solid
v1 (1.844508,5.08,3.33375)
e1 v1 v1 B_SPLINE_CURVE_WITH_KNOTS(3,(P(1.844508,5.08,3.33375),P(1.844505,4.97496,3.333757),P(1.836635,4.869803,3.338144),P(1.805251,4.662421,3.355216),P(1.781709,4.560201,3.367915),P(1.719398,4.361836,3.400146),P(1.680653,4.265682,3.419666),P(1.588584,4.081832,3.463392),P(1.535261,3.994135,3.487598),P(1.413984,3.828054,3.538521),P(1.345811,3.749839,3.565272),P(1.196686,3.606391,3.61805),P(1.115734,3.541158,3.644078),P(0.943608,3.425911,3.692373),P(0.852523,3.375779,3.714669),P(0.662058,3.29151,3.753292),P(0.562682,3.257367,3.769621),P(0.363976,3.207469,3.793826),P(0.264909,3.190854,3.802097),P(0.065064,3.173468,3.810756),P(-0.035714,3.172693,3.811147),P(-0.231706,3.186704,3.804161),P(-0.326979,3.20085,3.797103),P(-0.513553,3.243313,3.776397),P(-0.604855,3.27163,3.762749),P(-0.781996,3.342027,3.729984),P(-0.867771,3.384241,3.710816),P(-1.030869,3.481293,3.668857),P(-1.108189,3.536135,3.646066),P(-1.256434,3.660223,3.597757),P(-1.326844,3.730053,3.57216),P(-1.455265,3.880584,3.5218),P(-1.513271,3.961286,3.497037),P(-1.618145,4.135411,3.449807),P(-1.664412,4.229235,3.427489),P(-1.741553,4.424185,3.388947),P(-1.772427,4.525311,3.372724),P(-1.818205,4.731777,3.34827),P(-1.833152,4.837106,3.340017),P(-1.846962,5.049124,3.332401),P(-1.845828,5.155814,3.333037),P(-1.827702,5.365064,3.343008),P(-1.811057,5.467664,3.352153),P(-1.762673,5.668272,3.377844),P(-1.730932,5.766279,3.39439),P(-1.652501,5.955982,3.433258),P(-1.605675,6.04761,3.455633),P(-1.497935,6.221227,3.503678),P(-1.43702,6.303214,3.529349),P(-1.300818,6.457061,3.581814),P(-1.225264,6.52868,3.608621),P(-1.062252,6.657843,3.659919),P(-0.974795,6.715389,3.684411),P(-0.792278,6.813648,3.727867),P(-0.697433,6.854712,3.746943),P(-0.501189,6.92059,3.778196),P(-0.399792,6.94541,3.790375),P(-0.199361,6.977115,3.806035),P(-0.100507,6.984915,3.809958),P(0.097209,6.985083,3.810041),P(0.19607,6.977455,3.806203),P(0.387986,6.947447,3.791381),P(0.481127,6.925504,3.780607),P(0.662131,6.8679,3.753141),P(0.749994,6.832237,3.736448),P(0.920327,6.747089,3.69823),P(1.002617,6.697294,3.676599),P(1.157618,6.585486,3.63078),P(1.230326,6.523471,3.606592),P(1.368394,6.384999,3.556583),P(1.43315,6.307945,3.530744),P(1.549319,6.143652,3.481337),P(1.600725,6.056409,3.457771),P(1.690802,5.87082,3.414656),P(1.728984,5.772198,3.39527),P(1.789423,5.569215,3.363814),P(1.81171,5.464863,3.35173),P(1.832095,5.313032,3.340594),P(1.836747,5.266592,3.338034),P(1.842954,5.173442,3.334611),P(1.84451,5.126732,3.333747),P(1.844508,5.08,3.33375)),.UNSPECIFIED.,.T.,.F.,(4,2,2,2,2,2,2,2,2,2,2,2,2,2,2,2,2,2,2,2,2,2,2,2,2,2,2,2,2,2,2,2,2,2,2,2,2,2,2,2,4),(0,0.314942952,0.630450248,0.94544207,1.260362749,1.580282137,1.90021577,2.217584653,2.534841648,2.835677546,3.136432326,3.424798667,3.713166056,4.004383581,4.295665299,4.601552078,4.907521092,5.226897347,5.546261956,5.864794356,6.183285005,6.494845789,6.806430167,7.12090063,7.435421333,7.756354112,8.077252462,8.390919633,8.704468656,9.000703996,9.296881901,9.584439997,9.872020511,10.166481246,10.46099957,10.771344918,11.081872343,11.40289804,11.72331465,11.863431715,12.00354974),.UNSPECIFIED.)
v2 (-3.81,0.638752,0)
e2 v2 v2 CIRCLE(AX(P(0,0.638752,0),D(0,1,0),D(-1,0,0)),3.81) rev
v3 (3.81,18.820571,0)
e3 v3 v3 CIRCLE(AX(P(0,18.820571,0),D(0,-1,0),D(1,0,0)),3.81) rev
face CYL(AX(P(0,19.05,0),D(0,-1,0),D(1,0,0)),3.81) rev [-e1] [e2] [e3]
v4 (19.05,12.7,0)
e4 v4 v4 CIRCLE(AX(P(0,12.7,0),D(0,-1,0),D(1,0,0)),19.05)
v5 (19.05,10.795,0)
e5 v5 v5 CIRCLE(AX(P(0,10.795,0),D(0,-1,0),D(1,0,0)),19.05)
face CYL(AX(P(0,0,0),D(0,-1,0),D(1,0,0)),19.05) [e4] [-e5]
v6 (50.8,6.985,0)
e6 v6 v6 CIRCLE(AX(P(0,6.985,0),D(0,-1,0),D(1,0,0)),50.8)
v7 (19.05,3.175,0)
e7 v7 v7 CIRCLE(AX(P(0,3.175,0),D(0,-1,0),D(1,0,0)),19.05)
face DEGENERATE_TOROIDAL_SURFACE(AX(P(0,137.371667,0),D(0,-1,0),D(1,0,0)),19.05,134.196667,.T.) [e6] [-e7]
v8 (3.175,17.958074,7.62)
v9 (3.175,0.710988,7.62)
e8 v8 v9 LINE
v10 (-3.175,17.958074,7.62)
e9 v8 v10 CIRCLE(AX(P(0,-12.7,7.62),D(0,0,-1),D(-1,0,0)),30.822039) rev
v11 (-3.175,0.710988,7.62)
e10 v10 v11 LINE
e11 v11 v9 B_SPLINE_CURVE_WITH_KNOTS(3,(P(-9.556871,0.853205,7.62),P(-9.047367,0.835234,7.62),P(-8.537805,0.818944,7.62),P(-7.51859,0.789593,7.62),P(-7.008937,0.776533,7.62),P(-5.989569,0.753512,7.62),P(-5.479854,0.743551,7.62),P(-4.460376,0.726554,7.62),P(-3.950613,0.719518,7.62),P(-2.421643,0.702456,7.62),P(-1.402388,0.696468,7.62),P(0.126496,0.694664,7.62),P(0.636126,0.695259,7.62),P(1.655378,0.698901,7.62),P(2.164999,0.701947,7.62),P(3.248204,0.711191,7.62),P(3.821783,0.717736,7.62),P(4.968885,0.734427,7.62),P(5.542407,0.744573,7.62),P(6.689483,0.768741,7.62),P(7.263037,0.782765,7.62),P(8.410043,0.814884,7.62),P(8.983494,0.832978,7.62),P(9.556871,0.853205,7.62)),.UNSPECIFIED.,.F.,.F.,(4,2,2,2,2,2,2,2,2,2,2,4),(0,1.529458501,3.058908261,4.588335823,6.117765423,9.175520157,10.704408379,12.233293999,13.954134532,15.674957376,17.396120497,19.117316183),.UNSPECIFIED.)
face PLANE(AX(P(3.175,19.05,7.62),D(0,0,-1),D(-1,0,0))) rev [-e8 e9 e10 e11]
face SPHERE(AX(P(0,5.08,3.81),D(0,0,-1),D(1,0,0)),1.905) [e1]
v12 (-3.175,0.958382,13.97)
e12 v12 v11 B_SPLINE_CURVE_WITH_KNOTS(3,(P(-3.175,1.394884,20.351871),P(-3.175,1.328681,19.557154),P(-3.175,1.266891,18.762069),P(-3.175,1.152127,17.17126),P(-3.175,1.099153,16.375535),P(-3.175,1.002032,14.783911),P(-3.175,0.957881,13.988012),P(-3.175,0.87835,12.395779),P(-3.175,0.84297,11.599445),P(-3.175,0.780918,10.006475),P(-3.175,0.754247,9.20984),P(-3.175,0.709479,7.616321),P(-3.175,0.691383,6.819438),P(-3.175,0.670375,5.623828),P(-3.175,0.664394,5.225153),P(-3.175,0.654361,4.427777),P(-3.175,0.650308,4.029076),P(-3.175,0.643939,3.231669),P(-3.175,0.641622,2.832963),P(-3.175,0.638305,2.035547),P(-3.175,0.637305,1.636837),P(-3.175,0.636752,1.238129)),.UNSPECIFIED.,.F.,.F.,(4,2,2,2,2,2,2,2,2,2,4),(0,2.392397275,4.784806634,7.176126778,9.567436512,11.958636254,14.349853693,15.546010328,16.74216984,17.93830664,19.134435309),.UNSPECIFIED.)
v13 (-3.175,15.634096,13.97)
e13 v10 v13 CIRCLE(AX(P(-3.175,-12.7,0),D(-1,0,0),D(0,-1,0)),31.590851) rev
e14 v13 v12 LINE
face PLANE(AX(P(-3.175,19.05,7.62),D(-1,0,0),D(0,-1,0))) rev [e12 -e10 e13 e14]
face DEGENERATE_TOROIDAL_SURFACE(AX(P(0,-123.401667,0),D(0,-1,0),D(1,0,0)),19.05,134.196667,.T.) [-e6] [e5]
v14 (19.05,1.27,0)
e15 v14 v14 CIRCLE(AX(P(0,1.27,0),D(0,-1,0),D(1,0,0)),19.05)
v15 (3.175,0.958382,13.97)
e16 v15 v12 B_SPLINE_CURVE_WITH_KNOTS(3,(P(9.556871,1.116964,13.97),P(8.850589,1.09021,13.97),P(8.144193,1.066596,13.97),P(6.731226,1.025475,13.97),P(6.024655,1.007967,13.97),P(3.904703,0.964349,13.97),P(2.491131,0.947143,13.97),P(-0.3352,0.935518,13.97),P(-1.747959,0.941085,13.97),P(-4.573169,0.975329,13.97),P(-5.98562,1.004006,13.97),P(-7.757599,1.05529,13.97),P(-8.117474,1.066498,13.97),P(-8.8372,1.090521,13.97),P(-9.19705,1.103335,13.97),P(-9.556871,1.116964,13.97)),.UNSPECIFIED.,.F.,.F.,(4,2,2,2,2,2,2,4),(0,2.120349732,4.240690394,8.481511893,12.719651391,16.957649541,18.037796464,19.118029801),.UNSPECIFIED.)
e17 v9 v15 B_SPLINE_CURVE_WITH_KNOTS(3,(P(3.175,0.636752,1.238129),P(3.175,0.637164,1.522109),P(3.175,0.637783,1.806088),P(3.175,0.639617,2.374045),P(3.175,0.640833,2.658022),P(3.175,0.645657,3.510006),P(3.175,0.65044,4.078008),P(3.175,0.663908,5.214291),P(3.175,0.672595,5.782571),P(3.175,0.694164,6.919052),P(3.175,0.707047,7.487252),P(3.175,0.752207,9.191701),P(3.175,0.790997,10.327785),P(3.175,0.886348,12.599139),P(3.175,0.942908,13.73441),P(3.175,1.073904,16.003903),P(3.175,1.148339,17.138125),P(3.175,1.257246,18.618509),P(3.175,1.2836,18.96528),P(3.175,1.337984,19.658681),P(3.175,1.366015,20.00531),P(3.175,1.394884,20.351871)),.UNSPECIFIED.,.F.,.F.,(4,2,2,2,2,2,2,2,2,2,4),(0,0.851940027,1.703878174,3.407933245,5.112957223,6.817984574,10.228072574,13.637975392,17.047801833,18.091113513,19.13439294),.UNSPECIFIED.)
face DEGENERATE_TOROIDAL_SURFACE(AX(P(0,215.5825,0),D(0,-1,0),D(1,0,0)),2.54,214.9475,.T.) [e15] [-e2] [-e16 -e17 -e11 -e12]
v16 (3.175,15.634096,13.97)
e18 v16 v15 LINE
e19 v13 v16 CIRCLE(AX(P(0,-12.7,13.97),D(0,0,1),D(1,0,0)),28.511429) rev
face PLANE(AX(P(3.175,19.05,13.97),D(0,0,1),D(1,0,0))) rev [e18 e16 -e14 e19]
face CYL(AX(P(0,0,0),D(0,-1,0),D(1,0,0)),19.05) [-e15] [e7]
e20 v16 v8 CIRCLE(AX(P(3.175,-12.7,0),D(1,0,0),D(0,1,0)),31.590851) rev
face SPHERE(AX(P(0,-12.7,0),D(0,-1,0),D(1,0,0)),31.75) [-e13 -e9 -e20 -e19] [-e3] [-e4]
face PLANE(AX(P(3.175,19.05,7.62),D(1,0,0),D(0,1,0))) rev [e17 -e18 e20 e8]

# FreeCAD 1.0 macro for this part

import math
import FreeCAD as App
import Part
import Sketcher

V = App.Vector
Q = App.Units.Quantity

doc = App.newDocument("Part")
body = doc.addObject("PartDesign::Body", "Body")

# Sketch on XY plane
sketch1 = body.newObject("Sketcher::SketchObject", "Sketch")
sketch1.AttachmentSupport = (doc.getObject("XY_Plane"), [""])
sketch1.MapMode = "FlatFace"
sketch1.addGeometry(Part.LineSegment(V(0, 19.1, 0), V(0, 0, 0)), False)
sketch1.addGeometry(Part.LineSegment(V(0, 0, 0), V(2.5, 0, 0)), False)
sketch1.addGeometry(Part.LineSegment(V(2.5, 0, 0), V(2.5, 0.6, 0)), False)
sketch1.addGeometry(Part.ArcOfCircle(Part.Circle(V(2.5, 215.6, 0), V(0, 0, 1), 214.9), math.radians(-90), math.radians(-85.59)), False)
sketch1.addGeometry(Part.LineSegment(V(19.1, 1.3, 0), V(19.1, 3.2, 0)), False)
sketch1.addGeometry(Part.ArcOfCircle(Part.Circle(V(19.1, 137.4, 0), V(0, 0, 1), 134.2), math.radians(-90), math.radians(-76.31)), False)
sketch1.addGeometry(Part.ArcOfCircle(Part.Circle(V(19.1, -123.4, 0), V(0, 0, 1), 134.2), math.radians(76.31), math.radians(90)), False)
sketch1.addGeometry(Part.LineSegment(V(19.1, 10.8, 0), V(19.1, 12.7, 0)), False)
sketch1.addGeometry(Part.ArcOfCircle(Part.Circle(V(0, -12.7, 0), V(0, 0, 1), 31.8), math.radians(53), math.radians(90)), False)
sketch1.addConstraint(Sketcher.Constraint("Coincident", 0, 2, 1, 1))
sketch1.addConstraint(Sketcher.Constraint("Coincident", 1, 2, 2, 1))
sketch1.addConstraint(Sketcher.Constraint("Coincident", 2, 2, 3, 1))
sketch1.addConstraint(Sketcher.Constraint("Coincident", 3, 2, 4, 1))
sketch1.addConstraint(Sketcher.Constraint("Coincident", 4, 2, 5, 1))
sketch1.addConstraint(Sketcher.Constraint("Coincident", 5, 2, 6, 1))
sketch1.addConstraint(Sketcher.Constraint("Coincident", 6, 2, 7, 1))
sketch1.addConstraint(Sketcher.Constraint("Coincident", 7, 2, 8, 1))
sketch1.addConstraint(Sketcher.Constraint("Coincident", 8, 2, 0, 1))
sketch1.addConstraint(Sketcher.Constraint("Vertical", 0))
sketch1.addConstraint(Sketcher.Constraint("Horizontal", 1))
sketch1.addConstraint(Sketcher.Constraint("Vertical", 2))
sketch1.addConstraint(Sketcher.Constraint("Vertical", 4))
sketch1.addConstraint(Sketcher.Constraint("Vertical", 7))
sketch1.addConstraint(Sketcher.Constraint("Coincident", 0, 2, -1, 1))
sketch1.addConstraint(Sketcher.Constraint("Equal", 5, 6))
sketch1.addConstraint(Sketcher.Constraint("PointOnObject", 8, 3, -2))
sketch1.addConstraint(Sketcher.Constraint("Vertical", 5, 3, 6, 3))
sketch1.addConstraint(Sketcher.Constraint("Vertical", 3, 3, 1, 2))
sketch1.addConstraint(Sketcher.Constraint("Vertical", 6, 3, 3, 2))
sketch1.addConstraint(Sketcher.Constraint("Vertical", 4, 2, 6, 2))
sketch1.addConstraint(Sketcher.Constraint("Equal", 4, 7))
sketch1.addConstraint(Sketcher.Constraint("Radius", 8, Q("1.25 in")))
sketch1.addConstraint(Sketcher.Constraint("DistanceX", 1, 1, 1, 2, Q("0.1 in")))
sketch1.addConstraint(Sketcher.Constraint("DistanceX", -1, 1, 5, 2, Q("2 in")))
sketch1.addConstraint(Sketcher.Constraint("DistanceY", 0, 2, 0, 1, Q("0.75 in")))
sketch1.addConstraint(Sketcher.Constraint("DistanceY", -1, 1, 7, 2, Q("0.5 in")))
sketch1.addConstraint(Sketcher.Constraint("Radius", 3, Q("8.4625 in")))
sketch1.addConstraint(Sketcher.Constraint("DistanceY", 2, 2, 4, 2, Q("0.1 in")))
sketch1.addConstraint(Sketcher.Constraint("DistanceY", 4, 2, 6, 2, Q("0.3 in")))
revolution = body.newObject("PartDesign::Revolution", "Revolution")
revolution.Profile = sketch1
revolution.ReferenceAxis = (sketch1, ["V_Axis"])
revolution.Angle = 360

# Sketch on XZ plane
sketch2 = body.newObject("Sketcher::SketchObject", "Sketch001")
sketch2.AttachmentSupport = (doc.getObject("XZ_Plane"), [""])
sketch2.MapMode = "FlatFace"
sketch2.addGeometry(Part.Circle(V(0, 0, 0), V(0, 0, 1), 3.8), False)
sketch2.addGeometry(Part.LineSegment(V(-3.2, 14, 0), V(-3.2, 7.6, 0)), False)
sketch2.addGeometry(Part.LineSegment(V(-3.2, 7.6, 0), V(3.2, 7.6, 0)), False)
sketch2.addGeometry(Part.LineSegment(V(3.2, 7.6, 0), V(3.2, 14, 0)), False)
sketch2.addGeometry(Part.LineSegment(V(3.2, 14, 0), V(-3.2, 14, 0)), False)
sketch2.addConstraint(Sketcher.Constraint("Coincident", 1, 2, 2, 1))
sketch2.addConstraint(Sketcher.Constraint("Coincident", 2, 2, 3, 1))
sketch2.addConstraint(Sketcher.Constraint("Coincident", 3, 2, 4, 1))
sketch2.addConstraint(Sketcher.Constraint("Coincident", 4, 2, 1, 1))
sketch2.addConstraint(Sketcher.Constraint("Vertical", 1))
sketch2.addConstraint(Sketcher.Constraint("Horizontal", 2))
sketch2.addConstraint(Sketcher.Constraint("Vertical", 3))
sketch2.addConstraint(Sketcher.Constraint("Horizontal", 4))
sketch2.addConstraint(Sketcher.Constraint("Coincident", 0, 3, -1, 1))
sketch2.addConstraint(Sketcher.Constraint("Equal", 4, 1))
sketch2.addConstraint(Sketcher.Constraint("Diameter", 0, Q("0.3 in")))
sketch2.addConstraint(Sketcher.Constraint("DistanceX", 2, 1, 2, 2, Q("0.25 in")))
sketch2.addConstraint(Sketcher.Constraint("DistanceY", -1, 1, 1, 2, Q("0.3 in")))
sketch2.addConstraint(Sketcher.Constraint("DistanceX", 1, 2, -1, 1, Q("0.125 in")))
pocket1 = body.newObject("PartDesign::Pocket", "Pocket")
pocket1.Profile = sketch2
pocket1.Type = "ThroughAll"

# Sketch on XZ plane
sketch3 = body.newObject("Sketcher::SketchObject", "Sketch002")
sketch3.AttachmentSupport = (doc.getObject("XZ_Plane"), [""])
sketch3.MapMode = "FlatFace"
sketch3.AttachmentOffset = App.Placement(V(0, 0, -0.2 * 25.4), App.Rotation())
sketch3.addGeometry(Part.LineSegment(V(0, 1.9, 0), V(0, 5.7, 0)), False)
sketch3.addGeometry(Part.ArcOfCircle(Part.Circle(V(0, 3.8, 0), V(0, 0, 1), 1.9), math.radians(-90), math.radians(90)), False)
sketch3.addConstraint(Sketcher.Constraint("Coincident", 0, 1, 1, 1))
sketch3.addConstraint(Sketcher.Constraint("Coincident", 1, 2, 0, 2))
sketch3.addConstraint(Sketcher.Constraint("Vertical", 0))
sketch3.addConstraint(Sketcher.Constraint("PointOnObject", 1, 3, -2))
sketch3.addConstraint(Sketcher.Constraint("PointOnObject", 0, 1, -2))
sketch3.addConstraint(Sketcher.Constraint("Radius", 1, Q("0.075 in")))
sketch3.addConstraint(Sketcher.Constraint("DistanceY", -1, 1, 1, 3, Q("0.15 in")))
revolution2 = body.newObject("PartDesign::Revolution", "Revolution001")
revolution2.Profile = sketch3
revolution2.ReferenceAxis = (sketch3, ["V_Axis"])
revolution2.Angle = 360

doc.recompute()
